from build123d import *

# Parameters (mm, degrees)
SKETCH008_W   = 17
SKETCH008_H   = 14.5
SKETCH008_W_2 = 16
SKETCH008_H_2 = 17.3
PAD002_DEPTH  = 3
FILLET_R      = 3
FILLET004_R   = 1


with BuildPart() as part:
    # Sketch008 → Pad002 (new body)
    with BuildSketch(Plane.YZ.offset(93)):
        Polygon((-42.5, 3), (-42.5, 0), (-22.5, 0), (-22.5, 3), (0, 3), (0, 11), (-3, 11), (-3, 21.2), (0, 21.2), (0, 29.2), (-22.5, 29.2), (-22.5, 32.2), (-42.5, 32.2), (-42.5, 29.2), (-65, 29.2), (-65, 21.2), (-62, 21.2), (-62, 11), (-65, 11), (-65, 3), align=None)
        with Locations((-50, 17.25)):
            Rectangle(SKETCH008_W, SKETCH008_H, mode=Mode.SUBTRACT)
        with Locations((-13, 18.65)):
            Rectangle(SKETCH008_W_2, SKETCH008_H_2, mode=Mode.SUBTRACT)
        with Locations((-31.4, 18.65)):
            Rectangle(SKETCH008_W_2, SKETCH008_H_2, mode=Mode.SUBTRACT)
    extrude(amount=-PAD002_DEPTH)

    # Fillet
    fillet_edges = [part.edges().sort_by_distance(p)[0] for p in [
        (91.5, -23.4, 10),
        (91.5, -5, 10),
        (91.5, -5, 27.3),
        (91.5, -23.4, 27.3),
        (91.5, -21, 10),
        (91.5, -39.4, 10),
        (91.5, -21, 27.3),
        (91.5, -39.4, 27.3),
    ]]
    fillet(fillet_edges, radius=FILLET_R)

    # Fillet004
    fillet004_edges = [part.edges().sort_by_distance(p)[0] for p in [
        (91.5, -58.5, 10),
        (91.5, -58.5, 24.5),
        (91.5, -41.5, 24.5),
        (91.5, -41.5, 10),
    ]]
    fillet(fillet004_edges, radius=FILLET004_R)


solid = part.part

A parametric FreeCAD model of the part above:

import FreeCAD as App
import Part
import Sketcher
from FreeCAD import Vector
Q = App.Units.Quantity


def edges_at(feature, points):
    """Names of the edges that pass closest to the given points."""
    edges = feature.Shape.Edges
    near = lambda p: min(range(len(edges)), key=lambda i: edges[i].distToShape(Part.Vertex(*p))[0])
    return sorted({f"Edge{near(p) + 1}" for p in points})

doc = App.newDocument("Part")
body = doc.addObject("PartDesign::Body", "Body")

# Sketch on YZ plane
sketch1 = body.newObject("Sketcher::SketchObject", "Sketch")
sketch1.AttachmentSupport = (doc.getObject("YZ_Plane"), [""])
sketch1.MapMode = "FlatFace"
sketch1.AttachmentOffset = App.Placement(Vector(0, 0, 93), App.Rotation())
sketch1.addGeometry([
    Part.LineSegment(Vector(-42.5, 3, 0), Vector(-42.5, 0, 0)),  # 0
    Part.LineSegment(Vector(-42.5, 0, 0), Vector(-22.5, 0, 0)),  # 1
    Part.LineSegment(Vector(-22.5, 0, 0), Vector(-22.5, 3, 0)),  # 2
    Part.LineSegment(Vector(-22.5, 3, 0), Vector(0, 3, 0)),  # 3
    Part.LineSegment(Vector(0, 3, 0), Vector(0, 11, 0)),  # 4
    Part.LineSegment(Vector(0, 11, 0), Vector(-3, 11, 0)),  # 5
    Part.LineSegment(Vector(-3, 11, 0), Vector(-3, 21.2, 0)),  # 6
    Part.LineSegment(Vector(-3, 21.2, 0), Vector(0, 21.2, 0)),  # 7
    Part.LineSegment(Vector(0, 21.2, 0), Vector(0, 29.2, 0)),  # 8
    Part.LineSegment(Vector(0, 29.2, 0), Vector(-22.5, 29.2, 0)),  # 9
    Part.LineSegment(Vector(-22.5, 29.2, 0), Vector(-22.5, 32.2, 0)),  # 10
    Part.LineSegment(Vector(-22.5, 32.2, 0), Vector(-42.5, 32.2, 0)),  # 11
    Part.LineSegment(Vector(-42.5, 32.2, 0), Vector(-42.5, 29.2, 0)),  # 12
    Part.LineSegment(Vector(-42.5, 29.2, 0), Vector(-65, 29.2, 0)),  # 13
    Part.LineSegment(Vector(-65, 29.2, 0), Vector(-65, 21.2, 0)),  # 14
    Part.LineSegment(Vector(-65, 21.2, 0), Vector(-62, 21.2, 0)),  # 15
    Part.LineSegment(Vector(-62, 21.2, 0), Vector(-62, 11, 0)),  # 16
    Part.LineSegment(Vector(-62, 11, 0), Vector(-65, 11, 0)),  # 17
    Part.LineSegment(Vector(-65, 11, 0), Vector(-65, 3, 0)),  # 18
    Part.LineSegment(Vector(-65, 3, 0), Vector(-42.5, 3, 0)),  # 19
    Part.LineSegment(Vector(-41.5, 10, 0), Vector(-58.5, 10, 0)),  # 20
    Part.LineSegment(Vector(-58.5, 10, 0), Vector(-58.5, 24.5, 0)),  # 21
    Part.LineSegment(Vector(-58.5, 24.5, 0), Vector(-41.5, 24.5, 0)),  # 22
    Part.LineSegment(Vector(-41.5, 24.5, 0), Vector(-41.5, 10, 0)),  # 23
    Part.LineSegment(Vector(-23.4, 10, 0), Vector(-39.4, 10, 0)),  # 24
    Part.LineSegment(Vector(-39.4, 10, 0), Vector(-39.4, 27.3, 0)),  # 25
    Part.LineSegment(Vector(-39.4, 27.3, 0), Vector(-23.4, 27.3, 0)),  # 26
    Part.LineSegment(Vector(-23.4, 27.3, 0), Vector(-23.4, 10, 0)),  # 27
    Part.LineSegment(Vector(-5, 10, 0), Vector(-21, 10, 0)),  # 28
    Part.LineSegment(Vector(-21, 10, 0), Vector(-21, 27.3, 0)),  # 29
    Part.LineSegment(Vector(-21, 27.3, 0), Vector(-5, 27.3, 0)),  # 30
    Part.LineSegment(Vector(-5, 27.3, 0), Vector(-5, 10, 0)),  # 31
], False)
sketch1.addConstraint([
    Sketcher.Constraint("Coincident", 0, 2, 1, 1),
    Sketcher.Constraint("Coincident", 1, 2, 2, 1),
    Sketcher.Constraint("Coincident", 2, 2, 3, 1),
    Sketcher.Constraint("Coincident", 3, 2, 4, 1),
    Sketcher.Constraint("Coincident", 4, 2, 5, 1),
    Sketcher.Constraint("Coincident", 5, 2, 6, 1),
    Sketcher.Constraint("Coincident", 6, 2, 7, 1),
    Sketcher.Constraint("Coincident", 7, 2, 8, 1),
    Sketcher.Constraint("Coincident", 8, 2, 9, 1),
    Sketcher.Constraint("Coincident", 9, 2, 10, 1),
    Sketcher.Constraint("Coincident", 10, 2, 11, 1),
    Sketcher.Constraint("Coincident", 11, 2, 12, 1),
    Sketcher.Constraint("Coincident", 12, 2, 13, 1),
    Sketcher.Constraint("Coincident", 13, 2, 14, 1),
    Sketcher.Constraint("Coincident", 14, 2, 15, 1),
    Sketcher.Constraint("Coincident", 15, 2, 16, 1),
    Sketcher.Constraint("Coincident", 16, 2, 17, 1),
    Sketcher.Constraint("Coincident", 17, 2, 18, 1),
    Sketcher.Constraint("Coincident", 18, 2, 19, 1),
    Sketcher.Constraint("Coincident", 19, 2, 0, 1),
    Sketcher.Constraint("Coincident", 20, 2, 21, 1),
    Sketcher.Constraint("Coincident", 21, 2, 22, 1),
    Sketcher.Constraint("Coincident", 22, 2, 23, 1),
    Sketcher.Constraint("Coincident", 23, 2, 20, 1),
    Sketcher.Constraint("Coincident", 24, 2, 25, 1),
    Sketcher.Constraint("Coincident", 25, 2, 26, 1),
    Sketcher.Constraint("Coincident", 26, 2, 27, 1),
    Sketcher.Constraint("Coincident", 27, 2, 24, 1),
    Sketcher.Constraint("Coincident", 28, 2, 29, 1),
    Sketcher.Constraint("Coincident", 29, 2, 30, 1),
    Sketcher.Constraint("Coincident", 30, 2, 31, 1),
    Sketcher.Constraint("Coincident", 31, 2, 28, 1),
    Sketcher.Constraint("Vertical", 0),
    Sketcher.Constraint("Horizontal", 1),
    Sketcher.Constraint("Vertical", 2),
    Sketcher.Constraint("Horizontal", 3),
    Sketcher.Constraint("Vertical", 4),
    Sketcher.Constraint("Horizontal", 5),
    Sketcher.Constraint("Vertical", 6),
    Sketcher.Constraint("Horizontal", 7),
    Sketcher.Constraint("Vertical", 8),
    Sketcher.Constraint("Horizontal", 9),
    Sketcher.Constraint("Vertical", 10),
    Sketcher.Constraint("Horizontal", 11),
    Sketcher.Constraint("Vertical", 12),
    Sketcher.Constraint("Horizontal", 13),
    Sketcher.Constraint("Vertical", 14),
    Sketcher.Constraint("Horizontal", 15),
    Sketcher.Constraint("Vertical", 16),
    Sketcher.Constraint("Horizontal", 17),
    Sketcher.Constraint("Vertical", 18),
    Sketcher.Constraint("Horizontal", 19),
    Sketcher.Constraint("Horizontal", 20),
    Sketcher.Constraint("Vertical", 21),
    Sketcher.Constraint("Horizontal", 22),
    Sketcher.Constraint("Vertical", 23),
    Sketcher.Constraint("Horizontal", 24),
    Sketcher.Constraint("Vertical", 25),
    Sketcher.Constraint("Horizontal", 26),
    Sketcher.Constraint("Vertical", 27),
    Sketcher.Constraint("Horizontal", 28),
    Sketcher.Constraint("Vertical", 29),
    Sketcher.Constraint("Horizontal", 30),
    Sketcher.Constraint("Vertical", 31),
    Sketcher.Constraint("PointOnObject", 0, 2, -1),
    Sketcher.Constraint("PointOnObject", 3, 2, -2),
    Sketcher.Constraint("PointOnObject", 7, 2, -2),
    Sketcher.Constraint("Horizontal", 9, 2, 12, 2),
    Sketcher.Constraint("Horizontal", 7, 2, 14, 2),
    Sketcher.Constraint("Horizontal", 5, 2, 16, 2),
    Sketcher.Constraint("Horizontal", 3, 2, 18, 2),
    Sketcher.Constraint("Horizontal", 23, 2, 24, 2),
    Sketcher.Constraint("Horizontal", 27, 2, 28, 2),
    Sketcher.Constraint("Horizontal", 26, 2, 29, 2),
    Sketcher.Constraint("Vertical", 2, 2, 9, 2),
    Sketcher.Constraint("Vertical", 0, 2, 11, 2),
    Sketcher.Constraint("Vertical", 14, 2, 17, 2),
    Sketcher.Constraint("Equal", 9, 13),
    Sketcher.Constraint("Equal", 7, 15),
    Sketcher.Constraint("Equal", 26, 28),
    Sketcher.Constraint("Equal", 17, 0),
    Sketcher.Constraint("Equal", 4, 8),
    Sketcher.Constraint("Equal", 2, 10),
    Sketcher.Constraint("DistanceX", 1, 1, 1, 2, Q("20 mm")),
    Sketcher.Constraint("DistanceX", 5, 2, 5, 1, Q("3 mm")),
    Sketcher.Constraint("DistanceX", 20, 2, 20, 1, Q("17 mm")),
    Sketcher.Constraint("DistanceX", 24, 2, 24, 1, Q("16 mm")),
    Sketcher.Constraint("DistanceY", 4, 1, 4, 2, Q("8 mm")),
    Sketcher.Constraint("DistanceX", 3, 1, 3, 2, Q("22.5 mm")),
    Sketcher.Constraint("DistanceY", 6, 1, 6, 2, Q("10.2 mm")),
    Sketcher.Constraint("DistanceY", 21, 1, 21, 2, Q("14.5 mm")),
    Sketcher.Constraint("DistanceY", 25, 1, 25, 2, Q("17.3 mm")),
    Sketcher.Constraint("DistanceY", -1, 1, 20, 2, Q("10 mm")),
    Sketcher.Constraint("DistanceX", 28, 2, -1, 1, Q("21 mm")),
    Sketcher.Constraint("DistanceX", 12, 2, 22, 2, Q("1 mm")),
    Sketcher.Constraint("DistanceX", 24, 2, -1, 1, Q("39.4 mm")),
])
pad1 = body.newObject("PartDesign::Pad", "Pad")
pad1.Profile = sketch1
pad1.Length = 3
pad1.Reversed = True
doc.recompute()

fillet = body.newObject("PartDesign::Fillet", "Fillet")
fillet.Base = (pad1, edges_at(pad1, [
    (91.5, -23.4, 10),
    (91.5, -5, 10),
    (91.5, -5, 27.3),
    (91.5, -23.4, 27.3),
    (91.5, -21, 10),
    (91.5, -39.4, 10),
    (91.5, -21, 27.3),
    (91.5, -39.4, 27.3),
]))
fillet.Radius = 3
doc.recompute()

fillet2 = body.newObject("PartDesign::Fillet", "Fillet001")
fillet2.Base = (fillet, edges_at(fillet, [
    (91.5, -58.5, 10),
    (91.5, -58.5, 24.5),
    (91.5, -41.5, 24.5),
    (91.5, -41.5, 10),
]))
fillet2.Radius = 1

doc.recompute()
